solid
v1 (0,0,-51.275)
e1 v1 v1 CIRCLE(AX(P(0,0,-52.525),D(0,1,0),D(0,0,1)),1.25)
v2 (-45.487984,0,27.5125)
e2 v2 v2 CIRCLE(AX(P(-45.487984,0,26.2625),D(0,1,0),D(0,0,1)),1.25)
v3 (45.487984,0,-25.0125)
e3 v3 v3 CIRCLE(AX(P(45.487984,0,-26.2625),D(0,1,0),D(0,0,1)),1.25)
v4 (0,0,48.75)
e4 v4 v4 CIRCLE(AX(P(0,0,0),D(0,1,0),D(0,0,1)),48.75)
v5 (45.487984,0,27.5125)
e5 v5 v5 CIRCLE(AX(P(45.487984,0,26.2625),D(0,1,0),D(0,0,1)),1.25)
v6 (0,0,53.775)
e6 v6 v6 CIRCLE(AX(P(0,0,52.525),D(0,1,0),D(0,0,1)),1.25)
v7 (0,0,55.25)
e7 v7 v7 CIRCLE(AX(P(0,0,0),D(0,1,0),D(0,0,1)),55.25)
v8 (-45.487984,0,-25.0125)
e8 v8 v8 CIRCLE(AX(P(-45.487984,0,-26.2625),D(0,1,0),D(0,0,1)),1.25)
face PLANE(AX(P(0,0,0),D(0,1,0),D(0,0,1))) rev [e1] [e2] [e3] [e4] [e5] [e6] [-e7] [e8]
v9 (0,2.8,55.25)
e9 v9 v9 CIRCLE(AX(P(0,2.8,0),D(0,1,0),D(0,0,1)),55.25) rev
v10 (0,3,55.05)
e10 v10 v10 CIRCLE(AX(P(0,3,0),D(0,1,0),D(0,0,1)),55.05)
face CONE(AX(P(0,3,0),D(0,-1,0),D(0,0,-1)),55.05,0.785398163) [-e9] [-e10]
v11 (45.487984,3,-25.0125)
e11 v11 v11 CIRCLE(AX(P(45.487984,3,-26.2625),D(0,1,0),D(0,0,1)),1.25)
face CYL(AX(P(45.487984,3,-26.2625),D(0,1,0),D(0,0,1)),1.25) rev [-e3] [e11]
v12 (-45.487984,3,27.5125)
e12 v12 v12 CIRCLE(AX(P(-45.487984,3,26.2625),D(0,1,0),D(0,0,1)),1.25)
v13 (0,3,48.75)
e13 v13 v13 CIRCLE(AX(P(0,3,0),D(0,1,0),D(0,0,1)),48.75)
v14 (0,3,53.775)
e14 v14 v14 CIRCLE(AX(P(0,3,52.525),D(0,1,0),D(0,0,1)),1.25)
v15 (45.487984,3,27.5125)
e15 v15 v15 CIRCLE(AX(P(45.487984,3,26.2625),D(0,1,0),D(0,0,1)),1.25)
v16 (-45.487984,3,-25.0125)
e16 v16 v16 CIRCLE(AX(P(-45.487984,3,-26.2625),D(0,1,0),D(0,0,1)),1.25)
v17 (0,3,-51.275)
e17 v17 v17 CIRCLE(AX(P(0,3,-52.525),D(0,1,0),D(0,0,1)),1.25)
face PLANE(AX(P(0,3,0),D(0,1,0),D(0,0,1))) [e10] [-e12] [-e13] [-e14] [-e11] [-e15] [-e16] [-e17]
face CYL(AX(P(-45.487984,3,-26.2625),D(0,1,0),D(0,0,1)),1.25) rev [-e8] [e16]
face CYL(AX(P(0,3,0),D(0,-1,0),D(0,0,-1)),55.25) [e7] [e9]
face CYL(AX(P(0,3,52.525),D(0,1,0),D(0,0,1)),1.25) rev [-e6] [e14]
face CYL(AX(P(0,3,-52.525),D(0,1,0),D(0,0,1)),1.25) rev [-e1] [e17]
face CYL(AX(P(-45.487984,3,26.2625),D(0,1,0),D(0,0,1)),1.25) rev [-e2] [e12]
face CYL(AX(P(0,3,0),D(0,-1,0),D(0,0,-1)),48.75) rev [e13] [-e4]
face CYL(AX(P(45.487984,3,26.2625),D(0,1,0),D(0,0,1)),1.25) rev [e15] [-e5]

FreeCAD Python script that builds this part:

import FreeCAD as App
import Part
import Sketcher
Q = App.Units.Quantity


def edges_at(feature, points):
    """Names of the edges that pass closest to the given points."""
    edges = feature.Shape.Edges
    near = lambda p: min(range(len(edges)), key=lambda i: edges[i].distToShape(Part.Vertex(*p))[0])
    return sorted({f"Edge{near(p) + 1}" for p in points})

doc = App.newDocument("Part")
body = doc.addObject("PartDesign::Body", "Body")

# Sketch on XZ plane
sketch1 = body.newObject("Sketcher::SketchObject", "Sketch")
sketch1.AttachmentSupport = (doc.getObject("XZ_Plane"), [""])
sketch1.MapMode = "FlatFace"
sketch1.addGeometry(Part.Circle(App.Vector(0, 0, 0), App.Vector(0, 0, 1), 55.25), False)
sketch1.addGeometry(Part.Circle(App.Vector(0, 0, 0), App.Vector(0, 0, 1), 48.75), False)
sketch1.addConstraint(Sketcher.Constraint("Coincident", 0, 3, -1, 1))
sketch1.addConstraint(Sketcher.Constraint("Coincident", 1, 3, -1, 1))
sketch1.addConstraint(Sketcher.Constraint("Diameter", 0, Q("110.5 mm")))
sketch1.addConstraint(Sketcher.Constraint("Diameter", 1, Q("97.5 mm")))
pad1 = body.newObject("PartDesign::Pad", "Pad")
pad1.Profile = sketch1
pad1.Length = 3
pad1.Reversed = True

# Sketch on XZ plane
sketch2 = body.newObject("Sketcher::SketchObject", "Sketch001")
sketch2.AttachmentSupport = (doc.getObject("XZ_Plane"), [""])
sketch2.MapMode = "FlatFace"
sketch2.AttachmentOffset = App.Placement(App.Vector(0, 0, -3), App.Rotation())
sketch2.addGeometry(Part.Circle(App.Vector(0, -52.525, 0), App.Vector(0, 0, 1), 1.25), False)
sketch2.addGeometry(Part.Circle(App.Vector(45.487984, -26.2625, 0), App.Vector(0, 0, 1), 1.25), False)
sketch2.addGeometry(Part.Circle(App.Vector(45.487984, 26.2625, 0), App.Vector(0, 0, 1), 1.25), False)
sketch2.addGeometry(Part.Circle(App.Vector(0, 52.525, 0), App.Vector(0, 0, 1), 1.25), False)
sketch2.addGeometry(Part.Circle(App.Vector(-45.487984, 26.2625, 0), App.Vector(0, 0, 1), 1.25), False)
sketch2.addGeometry(Part.Circle(App.Vector(-45.487984, -26.2625, 0), App.Vector(0, 0, 1), 1.25), False)
sketch2.addConstraint(Sketcher.Constraint("Equal", 0, 1))
sketch2.addConstraint(Sketcher.Constraint("Equal", 1, 2))
sketch2.addConstraint(Sketcher.Constraint("Equal", 2, 3))
sketch2.addConstraint(Sketcher.Constraint("Equal", 3, 4))
sketch2.addConstraint(Sketcher.Constraint("Equal", 4, 5))
sketch2.addConstraint(Sketcher.Constraint("Symmetric", 0, 3, 3, 3, -1, 1))
sketch2.addConstraint(Sketcher.Constraint("Symmetric", 1, 3, 4, 3, -1, 1))
sketch2.addConstraint(Sketcher.Constraint("Symmetric", 2, 3, 5, 3, -1, 1))
sketch2.addConstraint(Sketcher.Constraint("Symmetric", 2, 3, 4, 3, -2))
sketch2.addConstraint(Sketcher.Constraint("PointOnObject", 0, 3, -2))
sketch2.addConstraint(Sketcher.Constraint("Diameter", 0, Q("2.5 mm")))
sketch2.addConstraint(Sketcher.Constraint("DistanceY", 0, 3, 3, 3, Q("105.05 mm")))
sketch2.addConstraint(Sketcher.Constraint("DistanceY", 1, 3, 2, 3, Q("52.525 mm")))
sketch2.addConstraint(Sketcher.Constraint("DistanceX", 4, 3, 2, 3, Q("90.975969 mm")))
doc.recompute()
hole = body.newObject("PartDesign::Hole", "Hole")
hole.Profile = sketch2
hole.ThreadType = "None"
hole.Diameter = 2.5
hole.DepthType = "ThroughAll"
hole.Reversed = True
doc.recompute()

chamfer = body.newObject("PartDesign::Chamfer", "Chamfer")
chamfer.Base = (hole, edges_at(hole, [(-55.25, 3, 0)]))
chamfer.Size = 0.2

doc.recompute()
